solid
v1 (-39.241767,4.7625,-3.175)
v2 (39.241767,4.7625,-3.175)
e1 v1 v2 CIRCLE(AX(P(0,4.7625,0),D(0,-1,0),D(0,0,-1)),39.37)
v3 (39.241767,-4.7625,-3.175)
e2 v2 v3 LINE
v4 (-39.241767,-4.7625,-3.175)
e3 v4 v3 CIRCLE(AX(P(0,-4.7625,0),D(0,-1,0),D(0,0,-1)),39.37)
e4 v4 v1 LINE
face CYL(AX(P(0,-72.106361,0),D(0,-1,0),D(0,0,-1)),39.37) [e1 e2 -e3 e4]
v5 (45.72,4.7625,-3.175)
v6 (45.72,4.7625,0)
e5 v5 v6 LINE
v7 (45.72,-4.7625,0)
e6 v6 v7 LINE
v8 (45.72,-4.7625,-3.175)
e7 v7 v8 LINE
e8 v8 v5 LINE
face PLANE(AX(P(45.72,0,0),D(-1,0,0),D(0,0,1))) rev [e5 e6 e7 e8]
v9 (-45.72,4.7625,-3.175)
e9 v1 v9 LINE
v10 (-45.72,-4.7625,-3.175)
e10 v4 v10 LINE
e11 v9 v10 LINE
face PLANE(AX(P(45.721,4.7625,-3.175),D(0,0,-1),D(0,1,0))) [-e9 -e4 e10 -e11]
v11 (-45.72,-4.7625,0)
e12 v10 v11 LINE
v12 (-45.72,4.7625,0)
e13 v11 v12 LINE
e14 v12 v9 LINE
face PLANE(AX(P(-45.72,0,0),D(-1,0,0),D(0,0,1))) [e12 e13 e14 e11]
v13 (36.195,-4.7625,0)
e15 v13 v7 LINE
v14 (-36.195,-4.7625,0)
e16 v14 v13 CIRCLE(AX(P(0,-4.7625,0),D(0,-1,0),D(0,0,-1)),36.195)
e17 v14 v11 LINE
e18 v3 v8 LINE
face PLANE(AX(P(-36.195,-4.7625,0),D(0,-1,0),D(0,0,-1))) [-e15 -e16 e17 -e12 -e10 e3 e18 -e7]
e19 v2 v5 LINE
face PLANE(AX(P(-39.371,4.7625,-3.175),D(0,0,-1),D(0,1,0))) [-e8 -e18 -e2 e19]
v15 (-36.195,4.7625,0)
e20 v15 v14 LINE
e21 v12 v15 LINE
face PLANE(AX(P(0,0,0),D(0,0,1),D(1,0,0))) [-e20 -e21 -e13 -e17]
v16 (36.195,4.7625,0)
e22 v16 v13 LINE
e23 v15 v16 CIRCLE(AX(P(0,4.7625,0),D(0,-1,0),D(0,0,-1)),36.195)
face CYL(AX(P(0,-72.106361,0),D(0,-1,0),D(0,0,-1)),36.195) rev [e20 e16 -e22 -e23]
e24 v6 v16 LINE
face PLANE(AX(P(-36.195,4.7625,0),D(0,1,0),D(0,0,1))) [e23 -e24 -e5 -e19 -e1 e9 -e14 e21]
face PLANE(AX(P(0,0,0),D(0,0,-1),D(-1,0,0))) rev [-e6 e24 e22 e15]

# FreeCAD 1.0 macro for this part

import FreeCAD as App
import Part
import Sketcher

V = App.Vector
Q = App.Units.Quantity


def add_polygon(sketch, points):
    """Adds a closed chain of lines whose ends are joined by coincident constraints."""
    first, n = sketch.GeometryCount, len(points)
    for a, b in zip(points, points[1:] + points[:1]):
        sketch.addGeometry(Part.LineSegment(App.Vector(*a, 0), App.Vector(*b, 0)), False)
    for i in range(n):
        sketch.addConstraint(Sketcher.Constraint("Coincident", first + i, 2, first + (i + 1) % n, 1))

doc = App.newDocument("Part")
body = doc.addObject("PartDesign::Body", "Body")

sketch1 = doc.addObject("Sketcher::SketchObject", "Sketch")
body.addObject(sketch1)
sketch1.AttachmentSupport = (doc.XY_Plane, [""])
sketch1.MapMode = "FlatFace"
add_polygon(sketch1, [(36.195, 4.7625), (36.195, -4.7625), (39.37, -4.7625), (39.37, 4.7625)])
sketch1.addConstraint([
    Sketcher.Constraint("Vertical", 0),
    Sketcher.Constraint("Horizontal", 1),
    Sketcher.Constraint("Vertical", 2),
    Sketcher.Constraint("Horizontal", 3),
    Sketcher.Constraint("DistanceX", 1, 1, 1, 2, Q("0.125 in")),
    Sketcher.Constraint("DistanceY", 0, 2, 0, 1, Q("0.375 in")),
    Sketcher.Constraint("DistanceX", -1, 1, 1, 2, Q("1.55 in")),
    Sketcher.Constraint("DistanceY", 0, 2, -1, 1, Q("0.1875 in")),
])
revolution = doc.addObject("PartDesign::Revolution", "Revolution")
body.addObject(revolution)
revolution.Profile = sketch1
revolution.ReferenceAxis = (sketch1, ["V_Axis"])
revolution.Angle = 180

sketch2 = doc.addObject("Sketcher::SketchObject", "Sketch001")
body.addObject(sketch2)
sketch2.AttachmentSupport = (doc.YZ_Plane, [""])
sketch2.MapMode = "FlatFace"
sketch2.AttachmentOffset = App.Placement(V(0, 0, 1.55 * 25.4), App.Rotation())
add_polygon(sketch2, [(4.7625, 0), (-4.7625, 0), (-4.7625, -3.175), (4.7625, -3.175)])
sketch2.addConstraint([
    Sketcher.Constraint("Horizontal", 0),
    Sketcher.Constraint("Vertical", 1),
    Sketcher.Constraint("Horizontal", 2),
    Sketcher.Constraint("Vertical", 3),
    Sketcher.Constraint("Symmetric", 0, 2, 3, 2, -1, 1),
    Sketcher.Constraint("DistanceX", 0, 2, 0, 1, Q("0.375 in")),
    Sketcher.Constraint("DistanceY", 1, 2, 1, 1, Q("0.125 in")),
])
pad1 = doc.addObject("PartDesign::Pad", "Pad")
body.addObject(pad1)
pad1.Profile = sketch2
pad1.Length = 0.128233
pad1.Reversed = True

sketch3 = doc.addObject("Sketcher::SketchObject", "Sketch002")
body.addObject(sketch3)
sketch3.AttachmentSupport = (doc.YZ_Plane, [""])
sketch3.MapMode = "FlatFace"
sketch3.AttachmentOffset = App.Placement(V(0, 0, 1.55 * 25.4), App.Rotation())
add_polygon(sketch3, [(4.7625, 0), (-4.7625, 0), (-4.7625, -3.175), (4.7625, -3.175)])
sketch3.addConstraint([
    Sketcher.Constraint("Horizontal", 0),
    Sketcher.Constraint("Vertical", 1),
    Sketcher.Constraint("Horizontal", 2),
    Sketcher.Constraint("Vertical", 3),
    Sketcher.Constraint("Symmetric", 0, 2, 3, 2, -1, 1),
    Sketcher.Constraint("DistanceX", 0, 2, 0, 1, Q("0.375 in")),
    Sketcher.Constraint("DistanceY", 1, 2, 1, 1, Q("0.125 in")),
])
pad2 = doc.addObject("PartDesign::Pad", "Pad001")
body.addObject(pad2)
pad2.Profile = sketch3
pad2.Length = Q("0.25 in")

sketch4 = doc.addObject("Sketcher::SketchObject", "Sketch003")
body.addObject(sketch4)
sketch4.AttachmentSupport = (doc.YZ_Plane, [""])
sketch4.MapMode = "FlatFace"
sketch4.AttachmentOffset = App.Placement(V(0, 0, -1.55 * 25.4), App.Rotation())
add_polygon(sketch4, [(4.7625, -3.175), (-4.7625, -3.175), (-4.7625, 0), (4.7625, 0)])
sketch4.addConstraint([
    Sketcher.Constraint("Horizontal", 0),
    Sketcher.Constraint("Vertical", 1),
    Sketcher.Constraint("Horizontal", 2),
    Sketcher.Constraint("Vertical", 3),
    Sketcher.Constraint("Symmetric", 1, 2, 2, 2, -1, 1),
    Sketcher.Constraint("DistanceX", 0, 2, 0, 1, Q("0.375 in")),
    Sketcher.Constraint("DistanceY", 1, 1, 1, 2, Q("0.125 in")),
])
pad3 = doc.addObject("PartDesign::Pad", "Pad002")
body.addObject(pad3)
pad3.Profile = sketch4
pad3.Length = 0.128233

sketch5 = doc.addObject("Sketcher::SketchObject", "Sketch004")
body.addObject(sketch5)
sketch5.AttachmentSupport = (doc.YZ_Plane, [""])
sketch5.MapMode = "FlatFace"
sketch5.AttachmentOffset = App.Placement(V(0, 0, -1.55 * 25.4), App.Rotation())
add_polygon(sketch5, [(4.7625, -3.175), (-4.7625, -3.175), (-4.7625, 0), (4.7625, 0)])
sketch5.addConstraint([
    Sketcher.Constraint("Horizontal", 0),
    Sketcher.Constraint("Vertical", 1),
    Sketcher.Constraint("Horizontal", 2),
    Sketcher.Constraint("Vertical", 3),
    Sketcher.Constraint("Symmetric", 1, 2, 2, 2, -1, 1),
    Sketcher.Constraint("DistanceX", 0, 2, 0, 1, Q("0.375 in")),
    Sketcher.Constraint("DistanceY", 1, 1, 1, 2, Q("0.125 in")),
])
pad4 = doc.addObject("PartDesign::Pad", "Pad003")
body.addObject(pad4)
pad4.Profile = sketch5
pad4.Length = Q("0.25 in")
pad4.Reversed = True

doc.recompute()
